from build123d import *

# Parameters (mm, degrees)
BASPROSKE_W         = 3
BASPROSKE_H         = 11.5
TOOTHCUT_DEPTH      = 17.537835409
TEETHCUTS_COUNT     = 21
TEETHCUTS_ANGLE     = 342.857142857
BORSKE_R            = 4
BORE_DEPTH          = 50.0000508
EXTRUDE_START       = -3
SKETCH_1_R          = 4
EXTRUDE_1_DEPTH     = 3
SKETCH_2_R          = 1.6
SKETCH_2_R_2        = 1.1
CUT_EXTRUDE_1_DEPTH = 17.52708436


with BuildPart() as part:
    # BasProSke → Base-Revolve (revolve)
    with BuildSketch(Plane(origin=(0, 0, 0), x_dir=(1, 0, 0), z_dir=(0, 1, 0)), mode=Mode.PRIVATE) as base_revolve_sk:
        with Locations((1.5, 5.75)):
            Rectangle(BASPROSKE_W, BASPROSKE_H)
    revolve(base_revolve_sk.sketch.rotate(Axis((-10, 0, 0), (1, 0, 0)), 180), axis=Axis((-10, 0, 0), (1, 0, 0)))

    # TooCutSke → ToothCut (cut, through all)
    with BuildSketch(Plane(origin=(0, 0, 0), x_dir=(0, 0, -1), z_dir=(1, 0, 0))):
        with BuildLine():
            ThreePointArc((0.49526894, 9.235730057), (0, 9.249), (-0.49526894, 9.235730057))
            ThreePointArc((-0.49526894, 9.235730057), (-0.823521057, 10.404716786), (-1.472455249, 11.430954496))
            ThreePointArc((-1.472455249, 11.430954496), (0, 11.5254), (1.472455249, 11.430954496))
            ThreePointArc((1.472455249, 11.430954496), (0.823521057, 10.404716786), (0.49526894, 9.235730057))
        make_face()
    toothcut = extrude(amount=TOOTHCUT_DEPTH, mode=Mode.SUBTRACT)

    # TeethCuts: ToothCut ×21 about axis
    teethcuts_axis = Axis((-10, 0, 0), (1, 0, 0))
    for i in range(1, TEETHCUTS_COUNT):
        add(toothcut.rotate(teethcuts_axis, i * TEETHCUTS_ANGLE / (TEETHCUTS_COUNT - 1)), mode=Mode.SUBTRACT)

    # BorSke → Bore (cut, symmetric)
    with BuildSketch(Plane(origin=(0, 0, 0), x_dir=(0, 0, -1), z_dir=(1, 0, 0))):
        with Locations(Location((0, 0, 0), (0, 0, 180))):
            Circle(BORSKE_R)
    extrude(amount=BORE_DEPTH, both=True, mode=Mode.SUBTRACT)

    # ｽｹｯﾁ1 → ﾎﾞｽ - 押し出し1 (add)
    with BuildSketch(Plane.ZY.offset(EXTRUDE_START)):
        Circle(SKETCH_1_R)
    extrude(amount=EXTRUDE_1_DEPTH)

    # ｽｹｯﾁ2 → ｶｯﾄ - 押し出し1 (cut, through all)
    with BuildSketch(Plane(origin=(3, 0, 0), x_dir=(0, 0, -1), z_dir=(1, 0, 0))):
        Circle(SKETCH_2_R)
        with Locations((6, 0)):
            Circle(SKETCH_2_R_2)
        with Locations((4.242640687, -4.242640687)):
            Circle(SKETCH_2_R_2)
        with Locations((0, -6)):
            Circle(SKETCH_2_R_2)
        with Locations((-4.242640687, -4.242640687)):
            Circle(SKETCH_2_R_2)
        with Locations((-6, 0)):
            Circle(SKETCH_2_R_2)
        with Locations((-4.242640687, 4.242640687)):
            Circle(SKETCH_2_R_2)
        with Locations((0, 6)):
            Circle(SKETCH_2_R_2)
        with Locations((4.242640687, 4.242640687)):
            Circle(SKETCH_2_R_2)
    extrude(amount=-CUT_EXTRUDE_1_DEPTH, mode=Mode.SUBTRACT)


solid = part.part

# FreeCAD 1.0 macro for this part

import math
import FreeCAD as App
import Part
import Sketcher
Q = App.Units.Quantity


def add_polygon(sketch, points):
    """Adds a closed chain of lines whose ends are joined by coincident constraints."""
    first, n = sketch.GeometryCount, len(points)
    for a, b in zip(points, points[1:] + points[:1]):
        sketch.addGeometry(Part.LineSegment(App.Vector(*a, 0), App.Vector(*b, 0)), False)
    for i in range(n):
        sketch.addConstraint(Sketcher.Constraint("Coincident", first + i, 2, first + (i + 1) % n, 1))

doc = App.newDocument("Part")
body = doc.addObject("PartDesign::Body", "Body")

sketch1 = body.newObject("Sketcher::SketchObject", "Sketch")
sketch1.AttachmentSupport = (doc.getObject("XZ_Plane"), [""])
sketch1.MapMode = "FlatFace"
add_polygon(sketch1, [(0, -11.5), (0, 0), (3, 0), (3, -11.5)])
sketch1.addConstraint(Sketcher.Constraint("Vertical", 0))
sketch1.addConstraint(Sketcher.Constraint("Horizontal", 1))
sketch1.addConstraint(Sketcher.Constraint("Vertical", 2))
sketch1.addConstraint(Sketcher.Constraint("Horizontal", 3))
sketch1.addConstraint(Sketcher.Constraint("Coincident", 0, 2, -1, 1))
sketch1.addConstraint(Sketcher.Constraint("DistanceX", 1, 1, 1, 2, Q("3 mm")))
sketch1.addConstraint(Sketcher.Constraint("DistanceY", 0, 1, 0, 2, Q("11.5 mm")))
revolution = body.newObject("PartDesign::Revolution", "Revolution")
revolution.Profile = sketch1
revolution.ReferenceAxis = (sketch1, ["H_Axis"])
revolution.Angle = 360

sketch2 = body.newObject("Sketcher::SketchObject", "Sketch001")
sketch2.AttachmentSupport = (doc.getObject("YZ_Plane"), [""])
sketch2.MapMode = "FlatFace"
sketch2.addGeometry(Part.ArcOfCircle(Part.Circle(App.Vector(0, 0, 0), App.Vector(0, 0, 1), 9.249), math.radians(-3.069564), math.radians(3.069564)), False)
sketch2.addGeometry(Part.ArcOfCircle(Part.Circle(App.Vector(8.696701, -4.660536, 0), App.Vector(0, 0, 1), 4.2), math.radians(49.381997), math.radians(82.626306)), False)
sketch2.addGeometry(Part.ArcOfCircle(Part.Circle(App.Vector(0, 0, 0), App.Vector(0, 0, 1), 11.5254), math.radians(-7.340021), math.radians(7.340021)), False)
sketch2.addGeometry(Part.ArcOfCircle(Part.Circle(App.Vector(8.696701, 4.660536, 0), App.Vector(0, 0, 1), 4.2), math.radians(-82.626306), math.radians(-49.381997)), False)
sketch2.addConstraint(Sketcher.Constraint("Coincident", 0, 1, 1, 2))
sketch2.addConstraint(Sketcher.Constraint("Coincident", 1, 1, 2, 1))
sketch2.addConstraint(Sketcher.Constraint("Coincident", 2, 2, 3, 2))
sketch2.addConstraint(Sketcher.Constraint("Coincident", 3, 1, 0, 2))
sketch2.addConstraint(Sketcher.Constraint("Coincident", 0, 3, -1, 1))
sketch2.addConstraint(Sketcher.Constraint("Coincident", 2, 3, -1, 1))
sketch2.addConstraint(Sketcher.Constraint("Equal", 1, 3))
sketch2.addConstraint(Sketcher.Constraint("Symmetric", 1, 3, 3, 3, -1))
sketch2.addConstraint(Sketcher.Constraint("Radius", 1, Q("4.2 mm")))
sketch2.addConstraint(Sketcher.Constraint("Radius", 0, Q("9.249 mm")))
sketch2.addConstraint(Sketcher.Constraint("Radius", 2, Q("11.5254 mm")))
sketch2.addConstraint(Sketcher.Constraint("DistanceX", -1, 1, 1, 3, Q("8.696701 mm")))
sketch2.addConstraint(Sketcher.Constraint("DistanceX", -1, 1, 0, 1, Q("9.23573 mm")))
pocket1 = body.newObject("PartDesign::Pocket", "Pocket")
pocket1.Profile = sketch2
pocket1.Type = "ThroughAll"
pocket1.Reversed = True
doc.recompute()

polarpattern = body.newObject("PartDesign::PolarPattern", "PolarPattern")
polarpattern.Originals = [pocket1]
polarpattern.Axis = (doc.getObject("X_Axis"), [""])
polarpattern.Angle = 360
polarpattern.Occurrences = 21
body.Tip = polarpattern

sketch3 = body.newObject("Sketcher::SketchObject", "Sketch002")
sketch3.AttachmentSupport = (doc.getObject("YZ_Plane"), [""])
sketch3.MapMode = "FlatFace"
sketch3.addGeometry(Part.Circle(App.Vector(0, 0, 0), App.Vector(0, 0, 1), 4), False)
sketch3.addConstraint(Sketcher.Constraint("Coincident", 0, 3, -1, 1))
sketch3.addConstraint(Sketcher.Constraint("Diameter", 0, Q("8 mm")))
pocket2 = body.newObject("PartDesign::Pocket", "Pocket001")
pocket2.Profile = sketch3
pocket2.Length = 100.000102
pocket2.Midplane = True

sketch4 = body.newObject("Sketcher::SketchObject", "Sketch003")
sketch4.AttachmentSupport = (doc.getObject("YZ_Plane"), [""])
sketch4.MapMode = "FlatFace"
sketch4.AttachmentOffset = App.Placement(App.Vector(0, 0, 3), App.Rotation())
sketch4.addGeometry(Part.Circle(App.Vector(0, 0, 0), App.Vector(0, 0, 1), 4), False)
sketch4.addConstraint(Sketcher.Constraint("Coincident", 0, 3, -1, 1))
sketch4.addConstraint(Sketcher.Constraint("Diameter", 0, Q("8 mm")))
pad1 = body.newObject("PartDesign::Pad", "Pad")
pad1.Profile = sketch4
pad1.Length = 3
pad1.Reversed = True

sketch5 = body.newObject("Sketcher::SketchObject", "Sketch004")
sketch5.AttachmentSupport = (doc.getObject("YZ_Plane"), [""])
sketch5.MapMode = "FlatFace"
sketch5.AttachmentOffset = App.Placement(App.Vector(0, 0, 3), App.Rotation())
sketch5.addGeometry(Part.Circle(App.Vector(0, 0, 0), App.Vector(0, 0, 1), 1.6), False)
sketch5.addGeometry(Part.Circle(App.Vector(0, -6, 0), App.Vector(0, 0, 1), 1.1), False)
sketch5.addGeometry(Part.Circle(App.Vector(-4.242641, -4.242641, 0), App.Vector(0, 0, 1), 1.1), False)
sketch5.addGeometry(Part.Circle(App.Vector(-6, 0, 0), App.Vector(0, 0, 1), 1.1), False)
sketch5.addGeometry(Part.Circle(App.Vector(-4.242641, 4.242641, 0), App.Vector(0, 0, 1), 1.1), False)
sketch5.addGeometry(Part.Circle(App.Vector(0, 6, 0), App.Vector(0, 0, 1), 1.1), False)
sketch5.addGeometry(Part.Circle(App.Vector(4.242641, 4.242641, 0), App.Vector(0, 0, 1), 1.1), False)
sketch5.addGeometry(Part.Circle(App.Vector(6, 0, 0), App.Vector(0, 0, 1), 1.1), False)
sketch5.addGeometry(Part.Circle(App.Vector(4.242641, -4.242641, 0), App.Vector(0, 0, 1), 1.1), False)
sketch5.addConstraint(Sketcher.Constraint("Coincident", 0, 3, -1, 1))
sketch5.addConstraint(Sketcher.Constraint("Equal", 1, 2))
sketch5.addConstraint(Sketcher.Constraint("Equal", 2, 3))
sketch5.addConstraint(Sketcher.Constraint("Equal", 3, 4))
sketch5.addConstraint(Sketcher.Constraint("Equal", 4, 5))
sketch5.addConstraint(Sketcher.Constraint("Equal", 5, 6))
sketch5.addConstraint(Sketcher.Constraint("Equal", 6, 7))
sketch5.addConstraint(Sketcher.Constraint("Equal", 7, 8))
sketch5.addConstraint(Sketcher.Constraint("Symmetric", 1, 3, 5, 3, -1, 1))
sketch5.addConstraint(Sketcher.Constraint("Symmetric", 2, 3, 6, 3, -1, 1))
sketch5.addConstraint(Sketcher.Constraint("Symmetric", 3, 3, 7, 3, -1, 1))
sketch5.addConstraint(Sketcher.Constraint("Symmetric", 4, 3, 8, 3, -1, 1))
sketch5.addConstraint(Sketcher.Constraint("Symmetric", 4, 3, 6, 3, -2))
sketch5.addConstraint(Sketcher.Constraint("PointOnObject", 1, 3, -2))
sketch5.addConstraint(Sketcher.Constraint("PointOnObject", 3, 3, -1))
sketch5.addConstraint(Sketcher.Constraint("Diameter", 0, Q("3.2 mm")))
sketch5.addConstraint(Sketcher.Constraint("Diameter", 1, Q("2.2 mm")))
sketch5.addConstraint(Sketcher.Constraint("DistanceY", 1, 3, -1, 1, Q("6 mm")))
sketch5.addConstraint(Sketcher.Constraint("DistanceX", 3, 3, -1, 1, Q("6 mm")))
sketch5.addConstraint(Sketcher.Constraint("DistanceX", 2, 3, -1, 1, Q("4.242641 mm")))
sketch5.addConstraint(Sketcher.Constraint("DistanceY", 2, 3, -1, 1, Q("4.242641 mm")))
pocket3 = body.newObject("PartDesign::Pocket", "Pocket002")
pocket3.Profile = sketch5
pocket3.Type = "ThroughAll"

doc.recompute()
